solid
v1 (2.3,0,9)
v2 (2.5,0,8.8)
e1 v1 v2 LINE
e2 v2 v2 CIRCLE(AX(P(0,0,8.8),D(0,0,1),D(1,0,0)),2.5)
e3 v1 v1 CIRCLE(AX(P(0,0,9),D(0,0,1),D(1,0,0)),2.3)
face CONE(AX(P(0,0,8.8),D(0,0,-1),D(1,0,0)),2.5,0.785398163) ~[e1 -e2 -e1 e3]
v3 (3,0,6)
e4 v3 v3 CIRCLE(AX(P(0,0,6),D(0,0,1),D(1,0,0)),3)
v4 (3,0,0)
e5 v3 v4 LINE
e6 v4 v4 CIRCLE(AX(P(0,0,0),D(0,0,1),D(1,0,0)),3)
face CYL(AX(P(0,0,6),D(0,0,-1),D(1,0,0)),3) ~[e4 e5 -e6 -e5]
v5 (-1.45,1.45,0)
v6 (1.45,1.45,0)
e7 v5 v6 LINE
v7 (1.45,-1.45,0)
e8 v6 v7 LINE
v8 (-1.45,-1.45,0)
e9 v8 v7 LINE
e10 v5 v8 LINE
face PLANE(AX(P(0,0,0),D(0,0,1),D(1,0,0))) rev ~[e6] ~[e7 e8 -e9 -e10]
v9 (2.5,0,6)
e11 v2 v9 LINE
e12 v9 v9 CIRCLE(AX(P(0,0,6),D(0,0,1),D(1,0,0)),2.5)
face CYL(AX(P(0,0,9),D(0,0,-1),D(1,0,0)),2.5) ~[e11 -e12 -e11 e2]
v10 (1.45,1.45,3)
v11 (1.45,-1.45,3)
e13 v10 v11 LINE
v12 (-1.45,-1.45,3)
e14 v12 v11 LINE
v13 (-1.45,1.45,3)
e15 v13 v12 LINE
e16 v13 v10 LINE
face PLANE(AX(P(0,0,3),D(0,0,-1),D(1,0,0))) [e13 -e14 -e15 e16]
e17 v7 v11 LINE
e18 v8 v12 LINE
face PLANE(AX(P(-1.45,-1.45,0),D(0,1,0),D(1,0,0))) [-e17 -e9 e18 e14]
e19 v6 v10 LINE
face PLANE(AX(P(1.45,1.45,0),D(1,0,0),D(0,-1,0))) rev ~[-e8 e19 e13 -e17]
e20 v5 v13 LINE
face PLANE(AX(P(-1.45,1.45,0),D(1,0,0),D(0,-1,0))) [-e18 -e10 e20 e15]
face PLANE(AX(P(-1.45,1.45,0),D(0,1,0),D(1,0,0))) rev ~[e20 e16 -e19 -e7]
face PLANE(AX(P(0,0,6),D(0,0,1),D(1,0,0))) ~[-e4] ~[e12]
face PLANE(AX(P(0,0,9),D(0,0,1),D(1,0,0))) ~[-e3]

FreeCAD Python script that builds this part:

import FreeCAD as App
import Part
import Sketcher
from FreeCAD import Vector


def edges_at(feature, points):
    """Names of the edges that pass closest to the given points."""
    edges = feature.Shape.Edges
    near = lambda p: min(range(len(edges)), key=lambda i: edges[i].distToShape(Part.Vertex(*p))[0])
    return sorted({f"Edge{near(p) + 1}" for p in points})


def add_polygon(sketch, points):
    """Adds a closed chain of lines whose ends are joined by coincident constraints."""
    first, n = sketch.GeometryCount, len(points)
    for a, b in zip(points, points[1:] + points[:1]):
        sketch.addGeometry(Part.LineSegment(App.Vector(*a, 0), App.Vector(*b, 0)), False)
    for i in range(n):
        sketch.addConstraint(Sketcher.Constraint("Coincident", first + i, 2, first + (i + 1) % n, 1))

doc = App.newDocument("Part")
body = doc.addObject("PartDesign::Body", "Body")

sketch1 = doc.addObject("Sketcher::SketchObject", "Sketch")
body.addObject(sketch1)
sketch1.AttachmentSupport = (doc.XZ_Plane, [""])
sketch1.MapMode = "FlatFace"
add_polygon(sketch1, [(2.5, 9), (0, 9), (0, 0), (3, 0), (3, 6), (2.5, 6)])
sketch1.addConstraint([
    Sketcher.Constraint("Horizontal", 0),
    Sketcher.Constraint("Vertical", 1),
    Sketcher.Constraint("Horizontal", 2),
    Sketcher.Constraint("Vertical", 3),
    Sketcher.Constraint("Horizontal", 4),
    Sketcher.Constraint("Vertical", 5),
    Sketcher.Constraint("Coincident", 1, 2, -1, 1),
    Sketcher.Constraint("Equal", 2, 5),
    Sketcher.Constraint("DistanceX", 2, 1, 2, 2, 3.0),
    Sketcher.Constraint("DistanceY", 1, 2, 1, 1, 9.0),
    Sketcher.Constraint("DistanceX", 0, 2, 0, 1, 2.5),
])
revolution = doc.addObject("PartDesign::Revolution", "Revolution")
body.addObject(revolution)
revolution.Profile = sketch1
revolution.ReferenceAxis = (sketch1, ["V_Axis"])
revolution.Angle = 360

sketch2 = doc.addObject("Sketcher::SketchObject", "Sketch001")
body.addObject(sketch2)
sketch2.AttachmentSupport = (doc.XY_Plane, [""])
sketch2.MapMode = "FlatFace"
add_polygon(sketch2, [(-1.4, -1.4), (-1.4, 1.4), (1.4, 1.4), (1.4, -1.4)])
sketch2.addConstraint([
    Sketcher.Constraint("Vertical", 0),
    Sketcher.Constraint("Horizontal", 1),
    Sketcher.Constraint("Vertical", 2),
    Sketcher.Constraint("Horizontal", 3),
    Sketcher.Constraint("Symmetric", 0, 2, 2, 2, -1, 1),
    Sketcher.Constraint("Equal", 3, 0),
    Sketcher.Constraint("DistanceX", 1, 1, 1, 2, 2.9),
])
pocket1 = doc.addObject("PartDesign::Pocket", "Pocket")
body.addObject(pocket1)
pocket1.Profile = sketch2
pocket1.Length = 3
pocket1.Reversed = True
doc.recompute()

chamfer = doc.addObject("PartDesign::Chamfer", "Chamfer")
body.addObject(chamfer)
chamfer.Base = (pocket1, edges_at(pocket1, [(-2.5, 0, 9)]))
chamfer.Size = 0.2

doc.recompute()
